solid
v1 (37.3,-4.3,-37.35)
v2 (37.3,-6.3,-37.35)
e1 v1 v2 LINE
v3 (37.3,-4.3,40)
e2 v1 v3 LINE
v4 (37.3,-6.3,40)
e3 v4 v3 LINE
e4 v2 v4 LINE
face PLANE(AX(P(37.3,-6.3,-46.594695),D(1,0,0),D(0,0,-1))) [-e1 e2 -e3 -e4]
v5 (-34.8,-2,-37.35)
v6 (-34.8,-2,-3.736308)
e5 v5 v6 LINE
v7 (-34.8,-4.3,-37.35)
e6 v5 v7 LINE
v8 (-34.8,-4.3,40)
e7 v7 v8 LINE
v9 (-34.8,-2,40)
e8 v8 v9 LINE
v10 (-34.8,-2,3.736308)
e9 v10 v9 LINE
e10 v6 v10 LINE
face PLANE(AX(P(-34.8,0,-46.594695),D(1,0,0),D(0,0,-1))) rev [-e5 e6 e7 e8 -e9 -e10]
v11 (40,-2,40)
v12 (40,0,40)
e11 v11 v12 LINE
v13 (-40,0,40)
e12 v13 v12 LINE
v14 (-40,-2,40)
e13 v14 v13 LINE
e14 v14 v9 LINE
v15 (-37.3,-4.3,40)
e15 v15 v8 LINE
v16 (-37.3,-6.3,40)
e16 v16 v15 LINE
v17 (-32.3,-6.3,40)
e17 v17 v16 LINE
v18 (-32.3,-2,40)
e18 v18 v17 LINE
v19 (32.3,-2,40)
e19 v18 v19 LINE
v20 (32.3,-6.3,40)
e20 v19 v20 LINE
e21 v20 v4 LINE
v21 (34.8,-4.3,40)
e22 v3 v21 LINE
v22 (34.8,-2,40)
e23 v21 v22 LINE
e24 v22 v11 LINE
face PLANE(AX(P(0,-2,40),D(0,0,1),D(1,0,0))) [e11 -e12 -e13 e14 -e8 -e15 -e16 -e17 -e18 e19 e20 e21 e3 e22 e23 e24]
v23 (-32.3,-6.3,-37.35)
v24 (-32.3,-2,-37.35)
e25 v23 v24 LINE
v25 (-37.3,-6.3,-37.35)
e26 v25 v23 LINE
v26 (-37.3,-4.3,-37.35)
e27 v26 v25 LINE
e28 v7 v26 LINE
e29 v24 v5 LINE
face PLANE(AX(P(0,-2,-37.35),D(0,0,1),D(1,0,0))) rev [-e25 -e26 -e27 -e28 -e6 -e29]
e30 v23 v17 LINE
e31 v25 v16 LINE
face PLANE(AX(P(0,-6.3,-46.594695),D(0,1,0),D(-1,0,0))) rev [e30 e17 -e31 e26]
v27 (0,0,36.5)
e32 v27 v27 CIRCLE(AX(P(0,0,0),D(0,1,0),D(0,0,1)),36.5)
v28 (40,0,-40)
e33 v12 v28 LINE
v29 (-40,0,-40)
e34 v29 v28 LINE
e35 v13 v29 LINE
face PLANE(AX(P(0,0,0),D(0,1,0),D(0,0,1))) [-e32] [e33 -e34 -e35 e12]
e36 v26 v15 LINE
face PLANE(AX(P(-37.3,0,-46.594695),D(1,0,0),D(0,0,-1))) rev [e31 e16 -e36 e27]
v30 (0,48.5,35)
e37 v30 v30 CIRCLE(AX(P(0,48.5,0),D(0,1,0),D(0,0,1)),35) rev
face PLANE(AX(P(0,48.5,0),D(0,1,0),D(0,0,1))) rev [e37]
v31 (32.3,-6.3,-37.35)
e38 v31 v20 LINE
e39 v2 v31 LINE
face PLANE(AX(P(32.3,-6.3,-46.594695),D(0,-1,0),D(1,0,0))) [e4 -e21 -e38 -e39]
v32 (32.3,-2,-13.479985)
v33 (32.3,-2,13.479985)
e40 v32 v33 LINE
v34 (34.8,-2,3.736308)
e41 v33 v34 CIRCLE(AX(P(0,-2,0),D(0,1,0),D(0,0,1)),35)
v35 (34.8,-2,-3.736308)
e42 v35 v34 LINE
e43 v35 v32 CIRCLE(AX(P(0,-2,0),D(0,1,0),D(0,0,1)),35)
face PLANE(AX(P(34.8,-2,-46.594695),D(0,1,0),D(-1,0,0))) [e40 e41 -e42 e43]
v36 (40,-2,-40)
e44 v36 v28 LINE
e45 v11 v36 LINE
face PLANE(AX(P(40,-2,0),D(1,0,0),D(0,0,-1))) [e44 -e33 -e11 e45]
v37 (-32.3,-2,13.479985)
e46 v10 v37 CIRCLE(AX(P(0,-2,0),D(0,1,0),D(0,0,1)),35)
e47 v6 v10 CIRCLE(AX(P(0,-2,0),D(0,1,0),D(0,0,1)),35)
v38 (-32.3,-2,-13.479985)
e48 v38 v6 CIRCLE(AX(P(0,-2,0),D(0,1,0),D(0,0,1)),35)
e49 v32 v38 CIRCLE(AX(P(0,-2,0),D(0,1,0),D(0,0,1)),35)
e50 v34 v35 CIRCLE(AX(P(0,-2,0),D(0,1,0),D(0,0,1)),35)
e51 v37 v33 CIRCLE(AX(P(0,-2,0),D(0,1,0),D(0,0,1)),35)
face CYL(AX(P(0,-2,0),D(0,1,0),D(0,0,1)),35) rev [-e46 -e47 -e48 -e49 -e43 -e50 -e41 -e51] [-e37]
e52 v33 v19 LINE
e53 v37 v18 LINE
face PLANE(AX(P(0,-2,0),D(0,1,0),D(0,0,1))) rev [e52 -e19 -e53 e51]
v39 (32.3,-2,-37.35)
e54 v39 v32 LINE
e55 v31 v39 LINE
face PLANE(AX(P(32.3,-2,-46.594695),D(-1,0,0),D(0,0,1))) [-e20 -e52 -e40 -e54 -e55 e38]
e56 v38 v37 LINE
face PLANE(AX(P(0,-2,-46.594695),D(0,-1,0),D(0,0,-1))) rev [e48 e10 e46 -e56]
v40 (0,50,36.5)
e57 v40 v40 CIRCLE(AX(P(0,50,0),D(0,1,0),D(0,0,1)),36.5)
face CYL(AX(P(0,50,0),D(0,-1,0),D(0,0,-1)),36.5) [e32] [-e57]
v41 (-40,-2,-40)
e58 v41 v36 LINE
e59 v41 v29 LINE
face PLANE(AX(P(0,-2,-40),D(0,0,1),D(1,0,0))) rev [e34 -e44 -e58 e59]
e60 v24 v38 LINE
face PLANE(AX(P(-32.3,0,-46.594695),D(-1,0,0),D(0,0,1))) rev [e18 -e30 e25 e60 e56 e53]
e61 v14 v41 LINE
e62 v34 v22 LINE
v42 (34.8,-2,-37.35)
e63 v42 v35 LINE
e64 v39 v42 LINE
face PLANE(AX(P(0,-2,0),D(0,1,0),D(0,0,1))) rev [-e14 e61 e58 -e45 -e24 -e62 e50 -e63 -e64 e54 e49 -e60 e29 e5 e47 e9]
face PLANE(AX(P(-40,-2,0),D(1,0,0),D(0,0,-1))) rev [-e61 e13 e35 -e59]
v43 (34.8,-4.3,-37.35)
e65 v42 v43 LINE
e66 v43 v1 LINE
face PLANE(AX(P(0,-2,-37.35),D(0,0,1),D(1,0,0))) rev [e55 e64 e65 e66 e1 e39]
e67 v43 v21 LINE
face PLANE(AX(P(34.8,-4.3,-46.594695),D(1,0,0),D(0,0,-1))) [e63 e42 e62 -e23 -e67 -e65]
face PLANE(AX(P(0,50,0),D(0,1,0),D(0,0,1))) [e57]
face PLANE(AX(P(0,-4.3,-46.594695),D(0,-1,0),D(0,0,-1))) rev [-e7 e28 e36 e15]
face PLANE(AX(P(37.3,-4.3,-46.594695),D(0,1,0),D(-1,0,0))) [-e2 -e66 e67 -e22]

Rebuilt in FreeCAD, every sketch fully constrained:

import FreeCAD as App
import Part
import Sketcher

V = App.Vector


def add_polygon(sketch, points):
    """Adds a closed chain of lines whose ends are joined by coincident constraints."""
    first, n = sketch.GeometryCount, len(points)
    for a, b in zip(points, points[1:] + points[:1]):
        sketch.addGeometry(Part.LineSegment(App.Vector(*a, 0), App.Vector(*b, 0)), False)
    for i in range(n):
        sketch.addConstraint(Sketcher.Constraint("Coincident", first + i, 2, first + (i + 1) % n, 1))

doc = App.newDocument("Part")
body = doc.addObject("PartDesign::Body", "Body")

sketch1 = body.newObject("Sketcher::SketchObject", "Sketch")
sketch1.AttachmentSupport = (doc.getObject("XZ_Plane"), [""])
sketch1.MapMode = "FlatFace"
add_polygon(sketch1, [(-40, -40), (-40, 40), (40, 40), (40, -40)])
sketch1.addGeometry(Part.Circle(V(0, 0, 0), V(0, 0, 1), 35), False)
sketch1.addConstraint([
    Sketcher.Constraint("Vertical", 0),
    Sketcher.Constraint("Horizontal", 1),
    Sketcher.Constraint("Vertical", 2),
    Sketcher.Constraint("Horizontal", 3),
    Sketcher.Constraint("Coincident", 4, 3, -1, 1),
    Sketcher.Constraint("Symmetric", 0, 2, 2, 2, -1, 1),
    Sketcher.Constraint("Equal", 3, 0),
    Sketcher.Constraint("Diameter", 4, 70.0),
    Sketcher.Constraint("DistanceX", 1, 1, 1, 2, 80.0),
])
pad1 = body.newObject("PartDesign::Pad", "Pad")
pad1.Profile = sketch1
pad1.Length = 2

sketch2 = body.newObject("Sketcher::SketchObject", "Sketch001")
sketch2.AttachmentSupport = (doc.getObject("XZ_Plane"), [""])
sketch2.MapMode = "FlatFace"
sketch2.AttachmentOffset = App.Placement(V(0, 0, -50), App.Rotation())
sketch2.addGeometry([
    Part.Circle(V(0, 0, 0), V(0, 0, 1), 36),
    Part.Circle(V(0, 0, 0), V(0, 0, 1), 35),
], False)
sketch2.addConstraint([
    Sketcher.Constraint("Coincident", 0, 3, -1, 1),
    Sketcher.Constraint("Coincident", 1, 3, -1, 1),
    Sketcher.Constraint("Diameter", 0, 73.0),
    Sketcher.Constraint("Diameter", 1, 70.0),
])
pad2 = body.newObject("PartDesign::Pad", "Pad001")
pad2.Profile = sketch2
pad2.Length = 50

sketch3 = body.newObject("Sketcher::SketchObject", "Sketch002")
sketch3.AttachmentSupport = (doc.getObject("XY_Plane"), [""])
sketch3.MapMode = "FlatFace"
sketch3.AttachmentOffset = App.Placement(V(0, 0, 40), App.Rotation())
add_polygon(sketch3, [(-32.3, -2), (-34.8, -2), (-34.8, -4.3), (-37.3, -4.3), (-37.3, -6.3), (-32.3, -6.3)])
add_polygon(sketch3, [(32.3, -6.3), (37.3, -6.3), (37.3, -4.3), (34.8, -4.3), (34.8, -2), (32.3, -2)])
sketch3.addConstraint([
    Sketcher.Constraint("Horizontal", 0),
    Sketcher.Constraint("Vertical", 1),
    Sketcher.Constraint("Horizontal", 2),
    Sketcher.Constraint("Vertical", 3),
    Sketcher.Constraint("Horizontal", 4),
    Sketcher.Constraint("Vertical", 5),
    Sketcher.Constraint("Horizontal", 6),
    Sketcher.Constraint("Vertical", 7),
    Sketcher.Constraint("Horizontal", 8),
    Sketcher.Constraint("Vertical", 9),
    Sketcher.Constraint("Horizontal", 10),
    Sketcher.Constraint("Vertical", 11),
    Sketcher.Constraint("Symmetric", 3, 2, 6, 2, -2),
    Sketcher.Constraint("Symmetric", 1, 2, 8, 2, -2),
    Sketcher.Constraint("Symmetric", 5, 2, 10, 2, -2),
    Sketcher.Constraint("Equal", 0, 2),
    Sketcher.Constraint("DistanceX", 4, 1, 4, 2, 5.0),
    Sketcher.Constraint("DistanceY", 3, 2, 3, 1, 2.0),
    Sketcher.Constraint("DistanceY", 1, 2, 1, 1, 2.3),
    Sketcher.Constraint("DistanceY", 0, 2, -1, 1, 2.0),
    Sketcher.Constraint("DistanceX", 0, 2, -1, 1, 34.8),
])
pad3 = body.newObject("PartDesign::Pad", "Pad002")
pad3.Profile = sketch3
pad3.Length = 77.35
pad3.Reversed = True

sketch4 = body.newObject("Sketcher::SketchObject", "Sketch003")
sketch4.AttachmentSupport = (doc.getObject("XZ_Plane"), [""])
sketch4.MapMode = "FlatFace"
sketch4.AttachmentOffset = App.Placement(V(0, 0, -50), App.Rotation())
sketch4.addGeometry(Part.Circle(V(0, 0, 0), V(0, 0, 1), 36), False)
sketch4.addConstraint([
    Sketcher.Constraint("Coincident", 0, 3, -1, 1),
    Sketcher.Constraint("Diameter", 0, 72.0),
])
pad4 = body.newObject("PartDesign::Pad", "Pad003")
pad4.Profile = sketch4
pad4.Length = 1.5

doc.recompute()
